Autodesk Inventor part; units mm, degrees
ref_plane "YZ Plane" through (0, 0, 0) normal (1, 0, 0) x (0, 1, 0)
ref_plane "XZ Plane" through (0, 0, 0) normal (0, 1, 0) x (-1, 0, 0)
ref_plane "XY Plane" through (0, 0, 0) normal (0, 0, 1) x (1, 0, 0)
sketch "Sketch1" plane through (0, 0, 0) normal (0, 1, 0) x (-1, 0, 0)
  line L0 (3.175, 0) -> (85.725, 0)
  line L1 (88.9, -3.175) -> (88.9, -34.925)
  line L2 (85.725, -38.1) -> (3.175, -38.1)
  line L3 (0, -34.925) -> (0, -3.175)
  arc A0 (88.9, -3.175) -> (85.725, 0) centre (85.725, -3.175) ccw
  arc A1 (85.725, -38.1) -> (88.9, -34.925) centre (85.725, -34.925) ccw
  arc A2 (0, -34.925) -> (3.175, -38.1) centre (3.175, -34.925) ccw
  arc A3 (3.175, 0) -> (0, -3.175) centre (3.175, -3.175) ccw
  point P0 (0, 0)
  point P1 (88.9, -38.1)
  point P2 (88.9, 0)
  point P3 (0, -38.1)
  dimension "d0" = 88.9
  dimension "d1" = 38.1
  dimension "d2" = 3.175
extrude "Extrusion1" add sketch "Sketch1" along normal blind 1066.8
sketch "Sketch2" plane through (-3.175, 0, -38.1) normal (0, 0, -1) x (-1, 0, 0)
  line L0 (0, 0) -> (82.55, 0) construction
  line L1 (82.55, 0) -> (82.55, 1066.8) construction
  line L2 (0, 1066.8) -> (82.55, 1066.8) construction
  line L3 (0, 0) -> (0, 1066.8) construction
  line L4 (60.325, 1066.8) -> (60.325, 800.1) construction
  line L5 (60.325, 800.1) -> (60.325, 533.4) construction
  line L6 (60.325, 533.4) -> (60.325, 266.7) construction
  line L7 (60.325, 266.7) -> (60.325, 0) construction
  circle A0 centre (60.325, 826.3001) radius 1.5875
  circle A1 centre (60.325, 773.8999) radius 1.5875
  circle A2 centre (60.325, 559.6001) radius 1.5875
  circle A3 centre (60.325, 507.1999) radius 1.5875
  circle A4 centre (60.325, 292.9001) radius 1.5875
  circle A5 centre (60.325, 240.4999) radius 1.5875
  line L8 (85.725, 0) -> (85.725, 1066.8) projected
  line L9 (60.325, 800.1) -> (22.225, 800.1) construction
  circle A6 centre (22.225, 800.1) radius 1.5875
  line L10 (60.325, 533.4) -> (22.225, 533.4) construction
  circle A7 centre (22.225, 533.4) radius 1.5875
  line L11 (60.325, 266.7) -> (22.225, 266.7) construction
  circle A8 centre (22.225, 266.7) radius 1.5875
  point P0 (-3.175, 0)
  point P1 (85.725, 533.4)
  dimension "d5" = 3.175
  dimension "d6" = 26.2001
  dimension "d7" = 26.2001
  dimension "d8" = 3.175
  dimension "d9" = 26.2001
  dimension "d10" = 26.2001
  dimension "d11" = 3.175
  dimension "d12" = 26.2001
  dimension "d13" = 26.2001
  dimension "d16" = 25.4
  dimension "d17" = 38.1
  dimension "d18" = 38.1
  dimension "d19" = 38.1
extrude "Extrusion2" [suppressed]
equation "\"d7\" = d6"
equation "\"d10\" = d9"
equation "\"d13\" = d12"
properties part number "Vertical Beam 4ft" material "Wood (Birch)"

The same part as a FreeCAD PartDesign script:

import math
import FreeCAD as App
import Part
import Sketcher

V = App.Vector
Q = App.Units.Quantity

doc = App.newDocument("Part")
params = doc.addObject("Spreadsheet::Sheet", "Params")
for row, (alias, value) in enumerate([
    ("sketch1_radius", "0.125 in"),
    ("pad1_length", "42 in"),
], start=1):
    params.set(f"A{row}", alias)
    params.set(f"B{row}", "=" + value)
    params.setAlias(f"B{row}", alias)

body = doc.addObject("PartDesign::Body", "Body")

# Sketch on XZ plane
sketch1 = body.newObject("Sketcher::SketchObject", "Sketch")
sketch1.AttachmentSupport = (doc.getObject("XZ_Plane"), [""])
sketch1.MapMode = "FlatFace"
sketch1.addGeometry(Part.LineSegment(V(-85.7, 0, 0), V(-3.2, 0, 0)), False)
sketch1.addGeometry(Part.ArcOfCircle(Part.Circle(V(-3.2, -3.2, 0), V(0, 0, 1), 3.2), math.radians(0), math.radians(90)), False)
sketch1.addGeometry(Part.LineSegment(V(0, -3.2, 0), V(0, -34.9, 0)), False)
sketch1.addGeometry(Part.ArcOfCircle(Part.Circle(V(-3.2, -34.9, 0), V(0, 0, 1), 3.2), math.radians(-90), math.radians(0)), False)
sketch1.addGeometry(Part.LineSegment(V(-3.2, -38.1, 0), V(-85.7, -38.1, 0)), False)
sketch1.addGeometry(Part.ArcOfCircle(Part.Circle(V(-85.7, -34.9, 0), V(0, 0, 1), 3.2), math.radians(180), math.radians(270)), False)
sketch1.addGeometry(Part.LineSegment(V(-88.9, -34.9, 0), V(-88.9, -3.2, 0)), False)
sketch1.addGeometry(Part.ArcOfCircle(Part.Circle(V(-85.7, -3.2, 0), V(0, 0, 1), 3.2), math.radians(90), math.radians(180)), False)
sketch1.addConstraint(Sketcher.Constraint("Tangent", 0, 2, 1, 2))
sketch1.addConstraint(Sketcher.Constraint("Tangent", 1, 1, 2, 1))
sketch1.addConstraint(Sketcher.Constraint("Tangent", 2, 2, 3, 2))
sketch1.addConstraint(Sketcher.Constraint("Tangent", 3, 1, 4, 1))
sketch1.addConstraint(Sketcher.Constraint("Tangent", 4, 2, 5, 2))
sketch1.addConstraint(Sketcher.Constraint("Tangent", 5, 1, 6, 1))
sketch1.addConstraint(Sketcher.Constraint("Tangent", 6, 2, 7, 2))
sketch1.addConstraint(Sketcher.Constraint("Tangent", 7, 1, 0, 1))
sketch1.addConstraint(Sketcher.Constraint("Horizontal", 0))
sketch1.addConstraint(Sketcher.Constraint("Vertical", 2))
sketch1.addConstraint(Sketcher.Constraint("Horizontal", 4))
sketch1.addConstraint(Sketcher.Constraint("Vertical", 6))
sketch1.addConstraint(Sketcher.Constraint("Equal", 1, 3))
sketch1.addConstraint(Sketcher.Constraint("Equal", 3, 5))
sketch1.addConstraint(Sketcher.Constraint("Equal", 5, 7))
sketch1.addConstraint(Sketcher.Constraint("PointOnObject", 0, 2, -1))
sketch1.addConstraint(Sketcher.Constraint("PointOnObject", 1, 1, -2))
sketch1.addConstraint(Sketcher.Constraint("Radius", 1, Q("0.125 in")))
sketch1.addConstraint(Sketcher.Constraint("DistanceY", 3, 1, -1, 1, Q("1.5 in")))
sketch1.addConstraint(Sketcher.Constraint("DistanceX", 5, 1, -1, 1, Q("3.5 in")))
sketch1.setExpression("Constraints[17]", "Params.sketch1_radius")
pad1 = body.newObject("PartDesign::Pad", "Pad")
pad1.Profile = sketch1
pad1.setExpression("Length", "Params.pad1_length")
pad1.Reversed = True

doc.recompute()
